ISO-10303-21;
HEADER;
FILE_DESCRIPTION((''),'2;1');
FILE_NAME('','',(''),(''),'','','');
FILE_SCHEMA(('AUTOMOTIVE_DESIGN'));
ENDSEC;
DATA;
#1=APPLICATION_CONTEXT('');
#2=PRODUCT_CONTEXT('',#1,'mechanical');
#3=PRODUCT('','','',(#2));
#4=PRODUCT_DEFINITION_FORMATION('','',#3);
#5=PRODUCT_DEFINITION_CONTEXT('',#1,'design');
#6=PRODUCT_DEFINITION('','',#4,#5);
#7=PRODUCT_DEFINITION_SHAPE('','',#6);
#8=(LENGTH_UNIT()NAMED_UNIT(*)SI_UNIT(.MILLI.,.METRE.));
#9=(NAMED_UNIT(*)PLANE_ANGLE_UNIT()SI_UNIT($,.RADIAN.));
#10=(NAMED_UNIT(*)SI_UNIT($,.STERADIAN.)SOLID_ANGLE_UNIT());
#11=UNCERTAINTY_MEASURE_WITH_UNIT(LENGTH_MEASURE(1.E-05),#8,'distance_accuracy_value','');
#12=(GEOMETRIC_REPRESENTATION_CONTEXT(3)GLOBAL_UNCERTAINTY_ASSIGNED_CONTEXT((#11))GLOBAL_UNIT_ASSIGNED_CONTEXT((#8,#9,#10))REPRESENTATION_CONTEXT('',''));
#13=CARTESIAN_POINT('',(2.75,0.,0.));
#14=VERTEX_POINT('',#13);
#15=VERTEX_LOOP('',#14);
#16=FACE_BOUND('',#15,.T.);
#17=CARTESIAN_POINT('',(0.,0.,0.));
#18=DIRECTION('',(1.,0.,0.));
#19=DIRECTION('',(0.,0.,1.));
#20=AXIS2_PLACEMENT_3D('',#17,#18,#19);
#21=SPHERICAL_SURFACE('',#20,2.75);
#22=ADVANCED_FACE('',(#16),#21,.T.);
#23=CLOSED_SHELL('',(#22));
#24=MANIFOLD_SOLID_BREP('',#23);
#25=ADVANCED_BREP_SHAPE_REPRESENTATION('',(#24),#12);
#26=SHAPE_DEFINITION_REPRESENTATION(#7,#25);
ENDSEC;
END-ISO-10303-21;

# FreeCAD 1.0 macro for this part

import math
import FreeCAD as App
import Part
import Sketcher

V = App.Vector
Q = App.Units.Quantity

doc = App.newDocument("Part")
body = doc.addObject("PartDesign::Body", "Body")

# Sketch on XZ plane
sketch1 = body.newObject("Sketcher::SketchObject", "Sketch")
sketch1.AttachmentSupport = (doc.getObject("XZ_Plane"), [""])
sketch1.MapMode = "FlatFace"
sketch1.addGeometry(Part.LineSegment(V(2.8, 0, 0), V(-2.8, 0, 0)), False)
sketch1.addGeometry(Part.ArcOfCircle(Part.Circle(V(0, 0, 0), V(0, 0, 1), 2.8), math.radians(0), math.radians(180)), False)
sketch1.addConstraint(Sketcher.Constraint("Coincident", 0, 1, 1, 1))
sketch1.addConstraint(Sketcher.Constraint("Coincident", 1, 2, 0, 2))
sketch1.addConstraint(Sketcher.Constraint("Horizontal", 0))
sketch1.addConstraint(Sketcher.Constraint("Coincident", 1, 3, -1, 1))
sketch1.addConstraint(Sketcher.Constraint("PointOnObject", 0, 1, -1))
sketch1.addConstraint(Sketcher.Constraint("Radius", 1, Q("2.75 mm")))
revolution = body.newObject("PartDesign::Revolution", "Revolution")
revolution.Profile = sketch1
revolution.ReferenceAxis = (sketch1, ["H_Axis"])
revolution.Angle = 360

doc.recompute()
